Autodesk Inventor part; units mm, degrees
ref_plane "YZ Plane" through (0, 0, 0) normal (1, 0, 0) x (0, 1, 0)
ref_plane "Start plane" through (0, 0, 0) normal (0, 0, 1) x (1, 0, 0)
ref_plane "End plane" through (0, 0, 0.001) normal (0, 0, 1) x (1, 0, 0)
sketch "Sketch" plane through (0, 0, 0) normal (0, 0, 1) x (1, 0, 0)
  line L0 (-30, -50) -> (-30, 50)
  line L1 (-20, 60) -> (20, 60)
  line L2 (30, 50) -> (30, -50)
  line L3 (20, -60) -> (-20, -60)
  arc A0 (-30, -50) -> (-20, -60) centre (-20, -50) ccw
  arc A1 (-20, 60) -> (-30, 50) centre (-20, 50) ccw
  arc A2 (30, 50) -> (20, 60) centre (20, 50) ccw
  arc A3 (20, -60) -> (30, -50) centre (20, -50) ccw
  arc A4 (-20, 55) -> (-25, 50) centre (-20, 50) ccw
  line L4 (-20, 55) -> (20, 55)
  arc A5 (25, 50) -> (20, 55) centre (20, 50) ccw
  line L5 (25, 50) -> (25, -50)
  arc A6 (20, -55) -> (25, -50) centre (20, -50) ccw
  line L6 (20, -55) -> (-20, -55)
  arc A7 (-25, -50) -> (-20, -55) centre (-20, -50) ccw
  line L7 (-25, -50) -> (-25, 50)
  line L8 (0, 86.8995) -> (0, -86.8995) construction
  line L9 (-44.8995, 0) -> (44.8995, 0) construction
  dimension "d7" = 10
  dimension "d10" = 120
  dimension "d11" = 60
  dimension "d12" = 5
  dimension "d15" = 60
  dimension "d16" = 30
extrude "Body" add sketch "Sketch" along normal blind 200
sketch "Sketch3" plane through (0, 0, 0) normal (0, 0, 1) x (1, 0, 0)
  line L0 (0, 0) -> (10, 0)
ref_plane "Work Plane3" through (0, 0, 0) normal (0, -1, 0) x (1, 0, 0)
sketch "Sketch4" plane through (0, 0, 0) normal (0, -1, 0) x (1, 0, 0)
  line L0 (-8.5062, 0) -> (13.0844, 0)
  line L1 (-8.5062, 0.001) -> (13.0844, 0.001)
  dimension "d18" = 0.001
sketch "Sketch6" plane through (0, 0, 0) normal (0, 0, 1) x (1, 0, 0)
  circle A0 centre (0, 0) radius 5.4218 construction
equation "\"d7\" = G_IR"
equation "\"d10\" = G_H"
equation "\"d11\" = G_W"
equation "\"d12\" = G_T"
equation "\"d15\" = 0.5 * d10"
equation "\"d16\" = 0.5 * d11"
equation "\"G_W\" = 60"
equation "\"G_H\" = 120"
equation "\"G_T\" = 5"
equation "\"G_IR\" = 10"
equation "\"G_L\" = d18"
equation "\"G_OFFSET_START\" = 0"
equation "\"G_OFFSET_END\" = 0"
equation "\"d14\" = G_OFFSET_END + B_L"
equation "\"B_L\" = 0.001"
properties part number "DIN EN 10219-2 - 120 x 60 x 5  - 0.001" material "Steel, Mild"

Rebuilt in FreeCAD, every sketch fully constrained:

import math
import FreeCAD as App
import Part
import Sketcher

doc = App.newDocument("Part")
body = doc.addObject("PartDesign::Body", "Body")

# Sketch on XY plane
sketch1 = doc.addObject("Sketcher::SketchObject", "Sketch")
body.addObject(sketch1)
sketch1.AttachmentSupport = (doc.XY_Plane, [""])
sketch1.MapMode = "FlatFace"
sketch1.addGeometry([
    Part.LineSegment(App.Vector(-30, 50, 0), App.Vector(-30, -50, 0)),  # 0
    Part.ArcOfCircle(Part.Circle(App.Vector(-20, -50, 0), App.Vector(0, 0, 1), 10), math.radians(180), math.radians(270)),  # 1
    Part.LineSegment(App.Vector(-20, -60, 0), App.Vector(20, -60, 0)),  # 2
    Part.ArcOfCircle(Part.Circle(App.Vector(20, -50, 0), App.Vector(0, 0, 1), 10), math.radians(-90), math.radians(0)),  # 3
    Part.LineSegment(App.Vector(30, -50, 0), App.Vector(30, 50, 0)),  # 4
    Part.ArcOfCircle(Part.Circle(App.Vector(20, 50, 0), App.Vector(0, 0, 1), 10), math.radians(0), math.radians(90)),  # 5
    Part.LineSegment(App.Vector(20, 60, 0), App.Vector(-20, 60, 0)),  # 6
    Part.ArcOfCircle(Part.Circle(App.Vector(-20, 50, 0), App.Vector(0, 0, 1), 10), math.radians(90), math.radians(180)),  # 7
    Part.ArcOfCircle(Part.Circle(App.Vector(-20, 50, 0), App.Vector(0, 0, 1), 5), math.radians(90), math.radians(180)),  # 8
    Part.LineSegment(App.Vector(-20, 55, 0), App.Vector(20, 55, 0)),  # 9
    Part.ArcOfCircle(Part.Circle(App.Vector(20, 50, 0), App.Vector(0, 0, 1), 5), math.radians(0), math.radians(90)),  # 10
    Part.LineSegment(App.Vector(25, 50, 0), App.Vector(25, -50, 0)),  # 11
    Part.ArcOfCircle(Part.Circle(App.Vector(20, -50, 0), App.Vector(0, 0, 1), 5), math.radians(-90), math.radians(0)),  # 12
    Part.LineSegment(App.Vector(20, -55, 0), App.Vector(-20, -55, 0)),  # 13
    Part.ArcOfCircle(Part.Circle(App.Vector(-20, -50, 0), App.Vector(0, 0, 1), 5), math.radians(180), math.radians(270)),  # 14
    Part.LineSegment(App.Vector(-25, -50, 0), App.Vector(-25, 50, 0)),  # 15
], False)
sketch1.addConstraint([
    Sketcher.Constraint("Tangent", 0, 2, 1, 1),
    Sketcher.Constraint("Tangent", 1, 2, 2, 1),
    Sketcher.Constraint("Tangent", 2, 2, 3, 1),
    Sketcher.Constraint("Tangent", 3, 2, 4, 1),
    Sketcher.Constraint("Tangent", 4, 2, 5, 1),
    Sketcher.Constraint("Tangent", 5, 2, 6, 1),
    Sketcher.Constraint("Tangent", 6, 2, 7, 1),
    Sketcher.Constraint("Tangent", 7, 2, 0, 1),
    Sketcher.Constraint("Tangent", 8, 1, 9, 1),
    Sketcher.Constraint("Tangent", 9, 2, 10, 2),
    Sketcher.Constraint("Tangent", 10, 1, 11, 1),
    Sketcher.Constraint("Tangent", 11, 2, 12, 2),
    Sketcher.Constraint("Tangent", 12, 1, 13, 1),
    Sketcher.Constraint("Tangent", 13, 2, 14, 2),
    Sketcher.Constraint("Tangent", 14, 1, 15, 1),
    Sketcher.Constraint("Tangent", 15, 2, 8, 2),
    Sketcher.Constraint("Vertical", 0),
    Sketcher.Constraint("Horizontal", 2),
    Sketcher.Constraint("Vertical", 4),
    Sketcher.Constraint("Horizontal", 6),
    Sketcher.Constraint("Horizontal", 9),
    Sketcher.Constraint("Vertical", 11),
    Sketcher.Constraint("Horizontal", 13),
    Sketcher.Constraint("Vertical", 15),
    Sketcher.Constraint("Coincident", 8, 3, 7, 3),
    Sketcher.Constraint("Coincident", 10, 3, 5, 3),
    Sketcher.Constraint("Coincident", 12, 3, 3, 3),
    Sketcher.Constraint("Equal", 1, 3),
    Sketcher.Constraint("Equal", 3, 5),
    Sketcher.Constraint("Equal", 5, 7),
    Sketcher.Constraint("Equal", 12, 14),
    Sketcher.Constraint("Symmetric", 1, 3, 5, 3, -1, 1),
    Sketcher.Constraint("Radius", 1, 10.0),
    Sketcher.Constraint("Radius", 8, 5.0),
    Sketcher.Constraint("DistanceX", 0, 2, -1, 1, 30.0),
    Sketcher.Constraint("DistanceY", 1, 2, -1, 1, 60.0),
])
pad1 = doc.addObject("PartDesign::Pad", "Pad")
body.addObject(pad1)
pad1.Profile = sketch1
pad1.Length = 200

doc.recompute()
